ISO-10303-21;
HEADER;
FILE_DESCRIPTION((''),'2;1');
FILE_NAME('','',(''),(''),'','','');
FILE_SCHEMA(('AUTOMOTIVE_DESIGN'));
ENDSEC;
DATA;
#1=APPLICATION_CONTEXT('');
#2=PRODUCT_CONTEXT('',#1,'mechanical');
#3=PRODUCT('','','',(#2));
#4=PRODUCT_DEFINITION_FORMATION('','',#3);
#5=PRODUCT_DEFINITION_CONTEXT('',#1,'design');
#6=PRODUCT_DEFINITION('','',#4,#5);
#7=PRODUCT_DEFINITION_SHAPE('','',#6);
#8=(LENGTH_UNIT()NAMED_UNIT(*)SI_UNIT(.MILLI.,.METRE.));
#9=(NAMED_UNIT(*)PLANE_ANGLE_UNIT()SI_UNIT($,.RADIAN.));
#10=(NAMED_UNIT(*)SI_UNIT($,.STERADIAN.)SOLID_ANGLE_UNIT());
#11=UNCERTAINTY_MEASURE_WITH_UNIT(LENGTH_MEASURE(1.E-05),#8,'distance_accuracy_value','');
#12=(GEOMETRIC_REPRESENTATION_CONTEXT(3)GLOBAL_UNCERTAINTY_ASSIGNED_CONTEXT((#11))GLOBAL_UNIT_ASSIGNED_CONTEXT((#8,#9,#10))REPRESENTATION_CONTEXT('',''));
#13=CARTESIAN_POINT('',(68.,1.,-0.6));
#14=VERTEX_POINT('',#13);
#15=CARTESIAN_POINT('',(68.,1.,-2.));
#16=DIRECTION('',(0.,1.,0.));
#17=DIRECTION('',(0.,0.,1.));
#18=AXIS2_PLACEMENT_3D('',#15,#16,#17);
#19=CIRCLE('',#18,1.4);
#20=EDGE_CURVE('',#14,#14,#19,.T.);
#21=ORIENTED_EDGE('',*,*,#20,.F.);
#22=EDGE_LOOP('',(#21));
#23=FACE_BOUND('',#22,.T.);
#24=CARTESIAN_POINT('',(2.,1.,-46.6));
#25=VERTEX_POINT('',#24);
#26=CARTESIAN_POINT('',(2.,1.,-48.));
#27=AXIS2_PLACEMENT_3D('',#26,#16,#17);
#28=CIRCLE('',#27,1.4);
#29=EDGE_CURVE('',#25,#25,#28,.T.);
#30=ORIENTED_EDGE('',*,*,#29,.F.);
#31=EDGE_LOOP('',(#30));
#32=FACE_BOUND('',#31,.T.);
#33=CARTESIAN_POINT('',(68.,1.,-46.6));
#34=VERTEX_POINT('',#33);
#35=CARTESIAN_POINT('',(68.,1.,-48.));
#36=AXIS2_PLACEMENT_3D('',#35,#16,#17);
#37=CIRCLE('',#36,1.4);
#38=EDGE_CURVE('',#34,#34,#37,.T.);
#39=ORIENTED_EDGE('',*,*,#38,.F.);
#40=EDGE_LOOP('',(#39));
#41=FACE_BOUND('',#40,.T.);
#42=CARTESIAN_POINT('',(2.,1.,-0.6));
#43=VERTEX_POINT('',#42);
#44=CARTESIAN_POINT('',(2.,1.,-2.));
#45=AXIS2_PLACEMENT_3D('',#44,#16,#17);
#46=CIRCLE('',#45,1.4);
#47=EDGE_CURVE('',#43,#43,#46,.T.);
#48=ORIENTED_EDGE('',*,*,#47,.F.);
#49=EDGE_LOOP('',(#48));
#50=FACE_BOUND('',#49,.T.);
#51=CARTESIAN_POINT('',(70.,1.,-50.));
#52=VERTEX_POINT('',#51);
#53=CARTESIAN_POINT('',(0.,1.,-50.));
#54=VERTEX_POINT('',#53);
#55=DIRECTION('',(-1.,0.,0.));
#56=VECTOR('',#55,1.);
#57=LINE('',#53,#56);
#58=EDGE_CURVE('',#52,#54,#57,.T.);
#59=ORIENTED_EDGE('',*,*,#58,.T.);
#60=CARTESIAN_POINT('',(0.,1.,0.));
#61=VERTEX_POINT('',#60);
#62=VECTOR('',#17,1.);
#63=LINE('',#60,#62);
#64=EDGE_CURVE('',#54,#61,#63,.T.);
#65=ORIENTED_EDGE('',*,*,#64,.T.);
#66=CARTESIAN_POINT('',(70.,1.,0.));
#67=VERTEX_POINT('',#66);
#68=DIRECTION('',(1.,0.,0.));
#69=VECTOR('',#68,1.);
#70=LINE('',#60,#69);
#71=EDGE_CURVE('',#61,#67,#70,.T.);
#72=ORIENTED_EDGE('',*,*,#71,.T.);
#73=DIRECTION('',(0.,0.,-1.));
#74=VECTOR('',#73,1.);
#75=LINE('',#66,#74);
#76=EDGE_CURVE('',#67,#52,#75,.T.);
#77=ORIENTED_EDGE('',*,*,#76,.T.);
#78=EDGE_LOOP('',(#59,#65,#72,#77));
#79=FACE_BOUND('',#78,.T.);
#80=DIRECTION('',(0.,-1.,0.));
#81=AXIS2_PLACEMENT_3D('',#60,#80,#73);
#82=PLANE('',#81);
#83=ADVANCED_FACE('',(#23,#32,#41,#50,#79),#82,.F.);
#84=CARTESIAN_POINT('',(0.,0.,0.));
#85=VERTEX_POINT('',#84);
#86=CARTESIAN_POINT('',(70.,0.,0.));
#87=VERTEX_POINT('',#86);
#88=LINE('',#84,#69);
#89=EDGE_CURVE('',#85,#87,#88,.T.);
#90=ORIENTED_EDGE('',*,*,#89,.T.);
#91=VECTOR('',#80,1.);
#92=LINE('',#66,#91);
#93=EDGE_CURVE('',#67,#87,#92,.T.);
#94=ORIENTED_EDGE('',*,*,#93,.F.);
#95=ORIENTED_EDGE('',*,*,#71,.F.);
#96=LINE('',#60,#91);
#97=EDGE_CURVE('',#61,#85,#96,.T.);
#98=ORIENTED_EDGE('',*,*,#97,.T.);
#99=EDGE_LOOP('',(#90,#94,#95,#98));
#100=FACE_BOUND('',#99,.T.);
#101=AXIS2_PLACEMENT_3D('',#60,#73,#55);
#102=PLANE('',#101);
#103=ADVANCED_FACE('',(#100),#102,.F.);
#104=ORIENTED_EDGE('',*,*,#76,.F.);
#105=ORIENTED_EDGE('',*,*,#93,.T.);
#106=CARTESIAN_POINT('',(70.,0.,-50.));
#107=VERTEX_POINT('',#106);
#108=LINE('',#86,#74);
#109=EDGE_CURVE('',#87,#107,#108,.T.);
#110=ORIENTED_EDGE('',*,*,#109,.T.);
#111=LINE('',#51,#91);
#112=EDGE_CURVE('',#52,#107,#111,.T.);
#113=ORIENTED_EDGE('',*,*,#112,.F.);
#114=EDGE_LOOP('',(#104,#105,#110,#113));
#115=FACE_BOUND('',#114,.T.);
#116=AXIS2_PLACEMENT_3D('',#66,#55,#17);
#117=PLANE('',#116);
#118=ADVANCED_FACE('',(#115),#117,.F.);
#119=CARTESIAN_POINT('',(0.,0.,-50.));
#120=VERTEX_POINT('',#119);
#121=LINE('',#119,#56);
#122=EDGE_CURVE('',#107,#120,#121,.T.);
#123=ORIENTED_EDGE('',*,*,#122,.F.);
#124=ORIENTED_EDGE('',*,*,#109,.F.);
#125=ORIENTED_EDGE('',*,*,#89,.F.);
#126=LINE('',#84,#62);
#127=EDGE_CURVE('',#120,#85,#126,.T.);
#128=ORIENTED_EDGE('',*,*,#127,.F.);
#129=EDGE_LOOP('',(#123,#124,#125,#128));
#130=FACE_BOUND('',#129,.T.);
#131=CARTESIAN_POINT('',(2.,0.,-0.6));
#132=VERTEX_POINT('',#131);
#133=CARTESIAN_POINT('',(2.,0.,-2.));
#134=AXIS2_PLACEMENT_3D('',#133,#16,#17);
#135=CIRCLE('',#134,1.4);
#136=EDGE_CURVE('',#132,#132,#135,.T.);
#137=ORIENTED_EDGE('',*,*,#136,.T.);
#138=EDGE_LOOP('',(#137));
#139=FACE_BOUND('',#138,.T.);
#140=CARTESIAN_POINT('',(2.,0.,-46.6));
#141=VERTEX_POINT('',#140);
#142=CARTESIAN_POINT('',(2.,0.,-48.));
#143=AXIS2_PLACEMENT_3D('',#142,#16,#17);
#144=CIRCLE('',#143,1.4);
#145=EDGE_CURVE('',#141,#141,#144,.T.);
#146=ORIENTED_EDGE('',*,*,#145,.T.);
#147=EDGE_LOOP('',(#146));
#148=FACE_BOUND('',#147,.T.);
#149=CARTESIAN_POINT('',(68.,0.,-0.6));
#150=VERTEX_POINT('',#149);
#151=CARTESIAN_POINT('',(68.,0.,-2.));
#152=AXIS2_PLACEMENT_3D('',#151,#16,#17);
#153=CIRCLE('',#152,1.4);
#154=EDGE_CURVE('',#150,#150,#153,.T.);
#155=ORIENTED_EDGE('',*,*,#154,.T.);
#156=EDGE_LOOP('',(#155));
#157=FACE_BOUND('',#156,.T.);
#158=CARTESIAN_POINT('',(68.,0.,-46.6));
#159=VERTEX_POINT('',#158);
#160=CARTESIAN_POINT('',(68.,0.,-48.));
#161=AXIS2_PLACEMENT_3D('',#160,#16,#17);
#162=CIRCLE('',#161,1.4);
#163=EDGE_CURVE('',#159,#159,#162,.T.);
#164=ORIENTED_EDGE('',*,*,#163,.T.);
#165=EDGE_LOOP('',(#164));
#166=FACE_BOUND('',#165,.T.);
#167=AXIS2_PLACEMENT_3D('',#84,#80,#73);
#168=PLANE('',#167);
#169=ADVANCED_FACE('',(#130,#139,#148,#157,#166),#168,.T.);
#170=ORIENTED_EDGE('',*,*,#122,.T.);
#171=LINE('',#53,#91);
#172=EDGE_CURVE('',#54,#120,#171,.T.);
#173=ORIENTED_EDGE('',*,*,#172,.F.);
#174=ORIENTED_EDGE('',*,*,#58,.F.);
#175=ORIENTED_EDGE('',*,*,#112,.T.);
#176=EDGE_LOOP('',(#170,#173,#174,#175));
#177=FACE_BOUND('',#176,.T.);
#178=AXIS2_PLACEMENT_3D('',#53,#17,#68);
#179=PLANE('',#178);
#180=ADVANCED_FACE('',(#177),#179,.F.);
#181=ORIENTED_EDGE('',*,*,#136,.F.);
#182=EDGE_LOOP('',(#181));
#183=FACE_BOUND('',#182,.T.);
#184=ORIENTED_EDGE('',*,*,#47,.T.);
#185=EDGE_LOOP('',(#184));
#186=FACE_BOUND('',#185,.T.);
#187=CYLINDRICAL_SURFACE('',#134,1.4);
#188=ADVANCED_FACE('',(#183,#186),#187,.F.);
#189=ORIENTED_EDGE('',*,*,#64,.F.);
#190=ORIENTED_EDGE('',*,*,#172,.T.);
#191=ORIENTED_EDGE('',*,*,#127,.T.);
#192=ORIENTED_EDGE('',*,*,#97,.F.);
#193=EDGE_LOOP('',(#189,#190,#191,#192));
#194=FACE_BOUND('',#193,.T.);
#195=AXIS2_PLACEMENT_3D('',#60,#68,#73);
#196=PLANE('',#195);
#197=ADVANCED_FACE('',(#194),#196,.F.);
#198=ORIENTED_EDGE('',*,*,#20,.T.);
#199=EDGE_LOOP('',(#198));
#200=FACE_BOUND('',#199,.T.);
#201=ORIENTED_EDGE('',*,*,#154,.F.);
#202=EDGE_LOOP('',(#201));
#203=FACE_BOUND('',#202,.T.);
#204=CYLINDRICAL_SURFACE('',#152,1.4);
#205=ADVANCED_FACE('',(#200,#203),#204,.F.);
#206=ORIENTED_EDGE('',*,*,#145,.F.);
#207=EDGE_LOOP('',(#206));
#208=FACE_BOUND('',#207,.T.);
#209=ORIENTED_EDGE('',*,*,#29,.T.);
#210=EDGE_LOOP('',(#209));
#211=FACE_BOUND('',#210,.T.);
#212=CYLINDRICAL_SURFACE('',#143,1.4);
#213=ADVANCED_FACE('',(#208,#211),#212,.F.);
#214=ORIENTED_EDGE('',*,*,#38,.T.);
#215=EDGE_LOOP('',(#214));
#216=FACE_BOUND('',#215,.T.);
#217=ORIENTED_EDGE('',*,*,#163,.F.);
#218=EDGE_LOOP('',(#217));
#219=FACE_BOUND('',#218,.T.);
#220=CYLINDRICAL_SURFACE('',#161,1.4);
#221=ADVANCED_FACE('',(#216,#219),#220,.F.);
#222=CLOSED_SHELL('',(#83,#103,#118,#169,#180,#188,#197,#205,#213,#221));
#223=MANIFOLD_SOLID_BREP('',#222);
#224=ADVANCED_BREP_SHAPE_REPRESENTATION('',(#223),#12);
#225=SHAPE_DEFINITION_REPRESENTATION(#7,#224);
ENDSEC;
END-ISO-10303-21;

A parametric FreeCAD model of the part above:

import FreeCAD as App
import Part
import Sketcher
Q = App.Units.Quantity


def add_polygon(sketch, points):
    """Adds a closed chain of lines whose ends are joined by coincident constraints."""
    first, n = sketch.GeometryCount, len(points)
    for a, b in zip(points, points[1:] + points[:1]):
        sketch.addGeometry(Part.LineSegment(App.Vector(*a, 0), App.Vector(*b, 0)), False)
    for i in range(n):
        sketch.addConstraint(Sketcher.Constraint("Coincident", first + i, 2, first + (i + 1) % n, 1))

doc = App.newDocument("Part")
params = doc.addObject("Spreadsheet::Sheet", "Params")
for row, (alias, value) in enumerate([
    ("sketch1_width", "70 mm"),
    ("sketch1_height", "50 mm"),
    ("pad1_length", "1 mm"),
    ("sketch2_diameter", "2.8 mm"),
], start=1):
    params.set(f"A{row}", alias)
    params.set(f"B{row}", "=" + value)
    params.setAlias(f"B{row}", alias)

body = doc.addObject("PartDesign::Body", "Body")

sketch1 = doc.addObject("Sketcher::SketchObject", "Sketch")
body.addObject(sketch1)
sketch1.AttachmentSupport = (doc.XZ_Plane, [""])
sketch1.MapMode = "FlatFace"
add_polygon(sketch1, [(0, -50), (0, 0), (70, 0), (70, -50)])
sketch1.addConstraint([
    Sketcher.Constraint("Vertical", 0),
    Sketcher.Constraint("Horizontal", 1),
    Sketcher.Constraint("Vertical", 2),
    Sketcher.Constraint("Horizontal", 3),
    Sketcher.Constraint("Coincident", 0, 2, -1, 1),
    Sketcher.Constraint("DistanceX", 1, 1, 1, 2, Q("70 mm")),
    Sketcher.Constraint("DistanceY", 0, 1, 0, 2, Q("50 mm")),
])
sketch1.setExpression("Constraints[9]", "Params.sketch1_width")
sketch1.setExpression("Constraints[10]", "Params.sketch1_height")
pad1 = doc.addObject("PartDesign::Pad", "Pad")
body.addObject(pad1)
pad1.Profile = sketch1
pad1.setExpression("Length", "Params.pad1_length")
pad1.Reversed = True

sketch2 = doc.addObject("Sketcher::SketchObject", "Sketch001")
body.addObject(sketch2)
sketch2.AttachmentSupport = (doc.XZ_Plane, [""])
sketch2.MapMode = "FlatFace"
sketch2.AttachmentOffset = App.Placement(App.Vector(0, 0, -1), App.Rotation())
sketch2.addGeometry([
    Part.Circle(App.Vector(2, -48, 0), App.Vector(0, 0, 1), 1.4),
    Part.Circle(App.Vector(68, -48, 0), App.Vector(0, 0, 1), 1.4),
    Part.Circle(App.Vector(68, -2, 0), App.Vector(0, 0, 1), 1.4),
    Part.Circle(App.Vector(2, -2, 0), App.Vector(0, 0, 1), 1.4),
], False)
sketch2.addConstraint([
    Sketcher.Constraint("Equal", 0, 1),
    Sketcher.Constraint("Equal", 1, 2),
    Sketcher.Constraint("Equal", 2, 3),
    Sketcher.Constraint("Horizontal", 0, 3, 1, 3),
    Sketcher.Constraint("Horizontal", 2, 3, 3, 3),
    Sketcher.Constraint("Vertical", 1, 3, 2, 3),
    Sketcher.Constraint("Vertical", 0, 3, 3, 3),
    Sketcher.Constraint("Diameter", 0, Q("2.8 mm")),
    Sketcher.Constraint("DistanceX", -1, 1, 0, 3, Q("2 mm")),
    Sketcher.Constraint("DistanceY", 0, 3, -1, 1, Q("48 mm")),
    Sketcher.Constraint("DistanceX", -1, 1, 1, 3, Q("68 mm")),
    Sketcher.Constraint("DistanceY", 2, 3, -1, 1, Q("2 mm")),
])
sketch2.setExpression("Constraints[7]", "Params.sketch2_diameter")
pocket1 = doc.addObject("PartDesign::Pocket", "Pocket")
body.addObject(pocket1)
pocket1.Profile = sketch2
pocket1.Type = "ThroughAll"
pocket1.Reversed = True

doc.recompute()
